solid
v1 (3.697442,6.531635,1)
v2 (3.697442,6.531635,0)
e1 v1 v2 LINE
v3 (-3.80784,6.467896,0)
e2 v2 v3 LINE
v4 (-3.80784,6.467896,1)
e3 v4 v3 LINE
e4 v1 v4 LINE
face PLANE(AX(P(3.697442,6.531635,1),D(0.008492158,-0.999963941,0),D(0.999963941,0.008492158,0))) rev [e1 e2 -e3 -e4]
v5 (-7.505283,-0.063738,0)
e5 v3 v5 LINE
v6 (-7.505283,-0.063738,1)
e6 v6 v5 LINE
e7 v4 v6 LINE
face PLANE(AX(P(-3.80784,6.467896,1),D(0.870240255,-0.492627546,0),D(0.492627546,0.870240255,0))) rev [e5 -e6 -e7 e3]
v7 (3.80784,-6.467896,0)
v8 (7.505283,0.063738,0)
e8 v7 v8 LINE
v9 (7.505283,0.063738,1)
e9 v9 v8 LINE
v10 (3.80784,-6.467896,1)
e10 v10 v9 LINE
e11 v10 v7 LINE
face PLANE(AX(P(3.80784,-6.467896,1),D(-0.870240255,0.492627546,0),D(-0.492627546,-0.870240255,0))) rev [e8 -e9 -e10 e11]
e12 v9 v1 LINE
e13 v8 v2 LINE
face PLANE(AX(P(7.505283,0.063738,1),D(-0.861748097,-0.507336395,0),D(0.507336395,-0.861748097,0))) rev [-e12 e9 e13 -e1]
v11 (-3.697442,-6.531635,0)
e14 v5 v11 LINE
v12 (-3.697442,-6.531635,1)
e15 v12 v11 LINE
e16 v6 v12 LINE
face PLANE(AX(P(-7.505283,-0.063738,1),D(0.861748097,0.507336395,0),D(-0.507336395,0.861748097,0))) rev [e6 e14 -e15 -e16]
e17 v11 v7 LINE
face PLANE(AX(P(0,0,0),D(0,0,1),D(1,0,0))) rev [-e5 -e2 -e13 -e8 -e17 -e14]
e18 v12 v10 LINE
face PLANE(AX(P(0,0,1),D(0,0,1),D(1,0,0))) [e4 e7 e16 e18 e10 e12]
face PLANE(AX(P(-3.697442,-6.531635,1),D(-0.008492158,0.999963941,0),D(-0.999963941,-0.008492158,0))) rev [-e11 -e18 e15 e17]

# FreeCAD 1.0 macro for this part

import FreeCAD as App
import Part
import Sketcher

doc = App.newDocument("Part")
body = doc.addObject("PartDesign::Body", "Body")

sketch1 = body.newObject("Sketcher::SketchObject", "Sketch")
sketch1.AttachmentSupport = (doc.getObject("XY_Plane"), [""])
sketch1.MapMode = "FlatFace"
sketch1.addGeometry([
    Part.LineSegment(App.Vector(-3.697442, -6.531635, 0), App.Vector(3.80784, -6.467896, 0)),
    Part.LineSegment(App.Vector(3.80784, -6.467896, 0), App.Vector(7.505283, 0.063738, 0)),
    Part.LineSegment(App.Vector(7.505283, 0.063738, 0), App.Vector(3.697442, 6.531635, 0)),
    Part.LineSegment(App.Vector(3.697442, 6.531635, 0), App.Vector(-3.80784, 6.467896, 0)),
    Part.LineSegment(App.Vector(-3.80784, 6.467896, 0), App.Vector(-7.505283, -0.063738, 0)),
    Part.LineSegment(App.Vector(-7.505283, -0.063738, 0), App.Vector(-3.697442, -6.531635, 0)),
], False)
sketch1.addConstraint([
    Sketcher.Constraint("Coincident", 0, 2, 1, 1),
    Sketcher.Constraint("Coincident", 1, 2, 2, 1),
    Sketcher.Constraint("Coincident", 2, 2, 3, 1),
    Sketcher.Constraint("Coincident", 3, 2, 4, 1),
    Sketcher.Constraint("Coincident", 4, 2, 5, 1),
    Sketcher.Constraint("Coincident", 5, 2, 0, 1),
    Sketcher.Constraint("Symmetric", 0, 2, 3, 2, -1, 1),
    Sketcher.Constraint("Symmetric", 1, 2, 4, 2, -1, 1),
    Sketcher.Constraint("Symmetric", 2, 2, 5, 2, -1, 1),
    Sketcher.Constraint("Equal", 0, 1),
    Sketcher.Constraint("Equal", 1, 2),
    Sketcher.Constraint("DistanceX", 2, 2, 0, 2, 0.110398),
    Sketcher.Constraint("DistanceX", -1, 1, 0, 2, 3.80784),
    Sketcher.Constraint("DistanceY", -1, 1, 1, 2, 0.063738),
    Sketcher.Constraint("DistanceX", 2, 2, 1, 2, 3.80784),
])
pad1 = body.newObject("PartDesign::Pad", "Pad")
pad1.Profile = sketch1
pad1.Length = 1

doc.recompute()
